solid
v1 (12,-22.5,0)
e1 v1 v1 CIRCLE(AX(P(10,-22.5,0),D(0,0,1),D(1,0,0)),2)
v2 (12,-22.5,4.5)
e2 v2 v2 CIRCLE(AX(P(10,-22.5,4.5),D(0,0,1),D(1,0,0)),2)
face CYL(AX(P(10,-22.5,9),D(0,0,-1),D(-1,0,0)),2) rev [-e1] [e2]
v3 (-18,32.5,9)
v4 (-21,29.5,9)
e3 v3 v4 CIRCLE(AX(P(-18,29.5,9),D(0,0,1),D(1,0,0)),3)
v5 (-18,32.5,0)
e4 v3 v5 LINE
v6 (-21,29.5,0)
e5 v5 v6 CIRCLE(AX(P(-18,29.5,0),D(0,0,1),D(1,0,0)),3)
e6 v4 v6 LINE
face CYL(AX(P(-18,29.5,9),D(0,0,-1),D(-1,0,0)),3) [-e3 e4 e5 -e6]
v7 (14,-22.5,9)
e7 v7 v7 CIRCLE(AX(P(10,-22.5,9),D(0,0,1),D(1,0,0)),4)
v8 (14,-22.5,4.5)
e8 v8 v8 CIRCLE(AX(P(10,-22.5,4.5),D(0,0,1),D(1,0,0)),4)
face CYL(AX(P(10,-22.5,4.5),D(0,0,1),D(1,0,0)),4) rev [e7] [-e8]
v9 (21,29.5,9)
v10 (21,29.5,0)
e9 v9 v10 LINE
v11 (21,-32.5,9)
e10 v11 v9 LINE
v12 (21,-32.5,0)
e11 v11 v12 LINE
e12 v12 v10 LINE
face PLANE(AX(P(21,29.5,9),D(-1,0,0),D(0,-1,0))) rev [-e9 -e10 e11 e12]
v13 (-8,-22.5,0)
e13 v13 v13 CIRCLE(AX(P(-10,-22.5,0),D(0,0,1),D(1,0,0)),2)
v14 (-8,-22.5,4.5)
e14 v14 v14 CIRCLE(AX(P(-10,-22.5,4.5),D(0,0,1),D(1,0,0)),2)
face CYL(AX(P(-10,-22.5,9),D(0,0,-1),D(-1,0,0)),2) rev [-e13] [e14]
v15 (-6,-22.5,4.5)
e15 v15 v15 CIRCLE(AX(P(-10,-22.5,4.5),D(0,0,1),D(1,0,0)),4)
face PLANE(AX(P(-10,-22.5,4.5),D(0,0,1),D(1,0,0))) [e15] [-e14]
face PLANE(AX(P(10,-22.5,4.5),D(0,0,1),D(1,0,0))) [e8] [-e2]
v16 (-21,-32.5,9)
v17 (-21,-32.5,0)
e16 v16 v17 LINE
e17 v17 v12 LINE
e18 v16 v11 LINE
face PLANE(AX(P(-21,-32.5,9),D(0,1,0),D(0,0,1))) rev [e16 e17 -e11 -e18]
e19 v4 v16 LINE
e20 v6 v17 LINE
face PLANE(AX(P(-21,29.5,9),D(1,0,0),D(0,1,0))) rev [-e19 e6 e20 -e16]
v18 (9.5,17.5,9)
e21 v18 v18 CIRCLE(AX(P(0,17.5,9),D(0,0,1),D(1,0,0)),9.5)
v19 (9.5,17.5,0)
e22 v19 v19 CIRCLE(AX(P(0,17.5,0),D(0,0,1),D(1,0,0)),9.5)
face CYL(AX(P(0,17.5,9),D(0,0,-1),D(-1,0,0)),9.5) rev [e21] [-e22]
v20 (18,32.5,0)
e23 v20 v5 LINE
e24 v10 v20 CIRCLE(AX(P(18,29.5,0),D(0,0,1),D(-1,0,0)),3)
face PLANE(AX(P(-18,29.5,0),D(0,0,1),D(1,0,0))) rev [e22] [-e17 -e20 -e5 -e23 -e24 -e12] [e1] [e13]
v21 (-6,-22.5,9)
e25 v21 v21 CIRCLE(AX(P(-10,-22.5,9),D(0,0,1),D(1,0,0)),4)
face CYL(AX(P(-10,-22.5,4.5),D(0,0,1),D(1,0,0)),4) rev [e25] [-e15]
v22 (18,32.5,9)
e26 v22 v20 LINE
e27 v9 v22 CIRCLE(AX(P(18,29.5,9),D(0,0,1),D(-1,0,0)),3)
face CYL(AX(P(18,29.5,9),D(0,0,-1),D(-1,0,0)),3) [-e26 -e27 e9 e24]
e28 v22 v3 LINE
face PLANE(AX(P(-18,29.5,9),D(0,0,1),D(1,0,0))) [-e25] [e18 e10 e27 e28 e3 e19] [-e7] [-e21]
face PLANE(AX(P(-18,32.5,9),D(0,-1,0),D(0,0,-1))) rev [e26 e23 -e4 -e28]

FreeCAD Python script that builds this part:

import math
import FreeCAD as App
import Part
import Sketcher
Q = App.Units.Quantity

doc = App.newDocument("Part")
body = doc.addObject("PartDesign::Body", "Body")

# Sketch on XY plane
sketch1 = body.newObject("Sketcher::SketchObject", "Sketch")
sketch1.AttachmentSupport = (doc.getObject("XY_Plane"), [""])
sketch1.MapMode = "FlatFace"
sketch1.addGeometry(Part.LineSegment(App.Vector(18, 32.5, 0), App.Vector(-18, 32.5, 0)), False)
sketch1.addGeometry(Part.ArcOfCircle(Part.Circle(App.Vector(-18, 29.5, 0), App.Vector(0, 0, 1), 3), math.radians(90), math.radians(180)), False)
sketch1.addGeometry(Part.LineSegment(App.Vector(-21, 29.5, 0), App.Vector(-21, -32.5, 0)), False)
sketch1.addGeometry(Part.LineSegment(App.Vector(-21, -32.5, 0), App.Vector(21, -32.5, 0)), False)
sketch1.addGeometry(Part.LineSegment(App.Vector(21, -32.5, 0), App.Vector(21, 29.5, 0)), False)
sketch1.addGeometry(Part.ArcOfCircle(Part.Circle(App.Vector(18, 29.5, 0), App.Vector(0, 0, 1), 3), math.radians(0), math.radians(90)), False)
sketch1.addGeometry(Part.Circle(App.Vector(10, -22.5, 0), App.Vector(0, 0, 1), 2), False)
sketch1.addGeometry(Part.Circle(App.Vector(-10, -22.5, 0), App.Vector(0, 0, 1), 2), False)
sketch1.addGeometry(Part.Circle(App.Vector(0, 17.5, 0), App.Vector(0, 0, 1), 9.5), False)
sketch1.addConstraint(Sketcher.Constraint("Tangent", 0, 2, 1, 1))
sketch1.addConstraint(Sketcher.Constraint("Tangent", 1, 2, 2, 1))
sketch1.addConstraint(Sketcher.Constraint("Coincident", 2, 2, 3, 1))
sketch1.addConstraint(Sketcher.Constraint("Coincident", 3, 2, 4, 1))
sketch1.addConstraint(Sketcher.Constraint("Tangent", 4, 2, 5, 1))
sketch1.addConstraint(Sketcher.Constraint("Tangent", 5, 2, 0, 1))
sketch1.addConstraint(Sketcher.Constraint("Horizontal", 0))
sketch1.addConstraint(Sketcher.Constraint("Vertical", 2))
sketch1.addConstraint(Sketcher.Constraint("Horizontal", 3))
sketch1.addConstraint(Sketcher.Constraint("Vertical", 4))
sketch1.addConstraint(Sketcher.Constraint("Equal", 1, 5))
sketch1.addConstraint(Sketcher.Constraint("Equal", 6, 7))
sketch1.addConstraint(Sketcher.Constraint("Symmetric", 6, 3, 7, 3, -2))
sketch1.addConstraint(Sketcher.Constraint("PointOnObject", 8, 3, -2))
sketch1.addConstraint(Sketcher.Constraint("Diameter", 6, Q("4 mm")))
sketch1.addConstraint(Sketcher.Constraint("Diameter", 8, Q("19 mm")))
sketch1.addConstraint(Sketcher.Constraint("Radius", 1, Q("3 mm")))
sketch1.addConstraint(Sketcher.Constraint("DistanceX", 0, 2, 0, 1, Q("36 mm")))
sketch1.addConstraint(Sketcher.Constraint("DistanceY", 2, 2, 2, 1, Q("62 mm")))
sketch1.addConstraint(Sketcher.Constraint("DistanceX", 1, 3, -1, 1, Q("18 mm")))
sketch1.addConstraint(Sketcher.Constraint("DistanceX", -1, 1, 6, 3, Q("10 mm")))
sketch1.addConstraint(Sketcher.Constraint("DistanceY", 6, 3, 5, 3, Q("52 mm")))
sketch1.addConstraint(Sketcher.Constraint("DistanceY", 8, 3, 1, 3, Q("12 mm")))
sketch1.addConstraint(Sketcher.Constraint("DistanceY", -1, 1, 1, 3, Q("29.5 mm")))
pad1 = body.newObject("PartDesign::Pad", "Pad")
pad1.Profile = sketch1
pad1.Length = 9

# Sketch on XY plane
sketch2 = body.newObject("Sketcher::SketchObject", "Sketch001")
sketch2.AttachmentSupport = (doc.getObject("XY_Plane"), [""])
sketch2.MapMode = "FlatFace"
sketch2.AttachmentOffset = App.Placement(App.Vector(0, 0, 9), App.Rotation())
sketch2.addGeometry(Part.Circle(App.Vector(-10, -22.5, 0), App.Vector(0, 0, 1), 4), False)
sketch2.addGeometry(Part.Circle(App.Vector(10, -22.5, 0), App.Vector(0, 0, 1), 4), False)
sketch2.addConstraint(Sketcher.Constraint("Equal", 0, 1))
sketch2.addConstraint(Sketcher.Constraint("Symmetric", 0, 3, 1, 3, -2))
sketch2.addConstraint(Sketcher.Constraint("Diameter", 0, Q("8 mm")))
sketch2.addConstraint(Sketcher.Constraint("DistanceX", 0, 3, -1, 1, Q("10 mm")))
sketch2.addConstraint(Sketcher.Constraint("DistanceY", 0, 3, -1, 1, Q("22.5 mm")))
pocket1 = body.newObject("PartDesign::Pocket", "Pocket")
pocket1.Profile = sketch2
pocket1.Length = 4.5

doc.recompute()
